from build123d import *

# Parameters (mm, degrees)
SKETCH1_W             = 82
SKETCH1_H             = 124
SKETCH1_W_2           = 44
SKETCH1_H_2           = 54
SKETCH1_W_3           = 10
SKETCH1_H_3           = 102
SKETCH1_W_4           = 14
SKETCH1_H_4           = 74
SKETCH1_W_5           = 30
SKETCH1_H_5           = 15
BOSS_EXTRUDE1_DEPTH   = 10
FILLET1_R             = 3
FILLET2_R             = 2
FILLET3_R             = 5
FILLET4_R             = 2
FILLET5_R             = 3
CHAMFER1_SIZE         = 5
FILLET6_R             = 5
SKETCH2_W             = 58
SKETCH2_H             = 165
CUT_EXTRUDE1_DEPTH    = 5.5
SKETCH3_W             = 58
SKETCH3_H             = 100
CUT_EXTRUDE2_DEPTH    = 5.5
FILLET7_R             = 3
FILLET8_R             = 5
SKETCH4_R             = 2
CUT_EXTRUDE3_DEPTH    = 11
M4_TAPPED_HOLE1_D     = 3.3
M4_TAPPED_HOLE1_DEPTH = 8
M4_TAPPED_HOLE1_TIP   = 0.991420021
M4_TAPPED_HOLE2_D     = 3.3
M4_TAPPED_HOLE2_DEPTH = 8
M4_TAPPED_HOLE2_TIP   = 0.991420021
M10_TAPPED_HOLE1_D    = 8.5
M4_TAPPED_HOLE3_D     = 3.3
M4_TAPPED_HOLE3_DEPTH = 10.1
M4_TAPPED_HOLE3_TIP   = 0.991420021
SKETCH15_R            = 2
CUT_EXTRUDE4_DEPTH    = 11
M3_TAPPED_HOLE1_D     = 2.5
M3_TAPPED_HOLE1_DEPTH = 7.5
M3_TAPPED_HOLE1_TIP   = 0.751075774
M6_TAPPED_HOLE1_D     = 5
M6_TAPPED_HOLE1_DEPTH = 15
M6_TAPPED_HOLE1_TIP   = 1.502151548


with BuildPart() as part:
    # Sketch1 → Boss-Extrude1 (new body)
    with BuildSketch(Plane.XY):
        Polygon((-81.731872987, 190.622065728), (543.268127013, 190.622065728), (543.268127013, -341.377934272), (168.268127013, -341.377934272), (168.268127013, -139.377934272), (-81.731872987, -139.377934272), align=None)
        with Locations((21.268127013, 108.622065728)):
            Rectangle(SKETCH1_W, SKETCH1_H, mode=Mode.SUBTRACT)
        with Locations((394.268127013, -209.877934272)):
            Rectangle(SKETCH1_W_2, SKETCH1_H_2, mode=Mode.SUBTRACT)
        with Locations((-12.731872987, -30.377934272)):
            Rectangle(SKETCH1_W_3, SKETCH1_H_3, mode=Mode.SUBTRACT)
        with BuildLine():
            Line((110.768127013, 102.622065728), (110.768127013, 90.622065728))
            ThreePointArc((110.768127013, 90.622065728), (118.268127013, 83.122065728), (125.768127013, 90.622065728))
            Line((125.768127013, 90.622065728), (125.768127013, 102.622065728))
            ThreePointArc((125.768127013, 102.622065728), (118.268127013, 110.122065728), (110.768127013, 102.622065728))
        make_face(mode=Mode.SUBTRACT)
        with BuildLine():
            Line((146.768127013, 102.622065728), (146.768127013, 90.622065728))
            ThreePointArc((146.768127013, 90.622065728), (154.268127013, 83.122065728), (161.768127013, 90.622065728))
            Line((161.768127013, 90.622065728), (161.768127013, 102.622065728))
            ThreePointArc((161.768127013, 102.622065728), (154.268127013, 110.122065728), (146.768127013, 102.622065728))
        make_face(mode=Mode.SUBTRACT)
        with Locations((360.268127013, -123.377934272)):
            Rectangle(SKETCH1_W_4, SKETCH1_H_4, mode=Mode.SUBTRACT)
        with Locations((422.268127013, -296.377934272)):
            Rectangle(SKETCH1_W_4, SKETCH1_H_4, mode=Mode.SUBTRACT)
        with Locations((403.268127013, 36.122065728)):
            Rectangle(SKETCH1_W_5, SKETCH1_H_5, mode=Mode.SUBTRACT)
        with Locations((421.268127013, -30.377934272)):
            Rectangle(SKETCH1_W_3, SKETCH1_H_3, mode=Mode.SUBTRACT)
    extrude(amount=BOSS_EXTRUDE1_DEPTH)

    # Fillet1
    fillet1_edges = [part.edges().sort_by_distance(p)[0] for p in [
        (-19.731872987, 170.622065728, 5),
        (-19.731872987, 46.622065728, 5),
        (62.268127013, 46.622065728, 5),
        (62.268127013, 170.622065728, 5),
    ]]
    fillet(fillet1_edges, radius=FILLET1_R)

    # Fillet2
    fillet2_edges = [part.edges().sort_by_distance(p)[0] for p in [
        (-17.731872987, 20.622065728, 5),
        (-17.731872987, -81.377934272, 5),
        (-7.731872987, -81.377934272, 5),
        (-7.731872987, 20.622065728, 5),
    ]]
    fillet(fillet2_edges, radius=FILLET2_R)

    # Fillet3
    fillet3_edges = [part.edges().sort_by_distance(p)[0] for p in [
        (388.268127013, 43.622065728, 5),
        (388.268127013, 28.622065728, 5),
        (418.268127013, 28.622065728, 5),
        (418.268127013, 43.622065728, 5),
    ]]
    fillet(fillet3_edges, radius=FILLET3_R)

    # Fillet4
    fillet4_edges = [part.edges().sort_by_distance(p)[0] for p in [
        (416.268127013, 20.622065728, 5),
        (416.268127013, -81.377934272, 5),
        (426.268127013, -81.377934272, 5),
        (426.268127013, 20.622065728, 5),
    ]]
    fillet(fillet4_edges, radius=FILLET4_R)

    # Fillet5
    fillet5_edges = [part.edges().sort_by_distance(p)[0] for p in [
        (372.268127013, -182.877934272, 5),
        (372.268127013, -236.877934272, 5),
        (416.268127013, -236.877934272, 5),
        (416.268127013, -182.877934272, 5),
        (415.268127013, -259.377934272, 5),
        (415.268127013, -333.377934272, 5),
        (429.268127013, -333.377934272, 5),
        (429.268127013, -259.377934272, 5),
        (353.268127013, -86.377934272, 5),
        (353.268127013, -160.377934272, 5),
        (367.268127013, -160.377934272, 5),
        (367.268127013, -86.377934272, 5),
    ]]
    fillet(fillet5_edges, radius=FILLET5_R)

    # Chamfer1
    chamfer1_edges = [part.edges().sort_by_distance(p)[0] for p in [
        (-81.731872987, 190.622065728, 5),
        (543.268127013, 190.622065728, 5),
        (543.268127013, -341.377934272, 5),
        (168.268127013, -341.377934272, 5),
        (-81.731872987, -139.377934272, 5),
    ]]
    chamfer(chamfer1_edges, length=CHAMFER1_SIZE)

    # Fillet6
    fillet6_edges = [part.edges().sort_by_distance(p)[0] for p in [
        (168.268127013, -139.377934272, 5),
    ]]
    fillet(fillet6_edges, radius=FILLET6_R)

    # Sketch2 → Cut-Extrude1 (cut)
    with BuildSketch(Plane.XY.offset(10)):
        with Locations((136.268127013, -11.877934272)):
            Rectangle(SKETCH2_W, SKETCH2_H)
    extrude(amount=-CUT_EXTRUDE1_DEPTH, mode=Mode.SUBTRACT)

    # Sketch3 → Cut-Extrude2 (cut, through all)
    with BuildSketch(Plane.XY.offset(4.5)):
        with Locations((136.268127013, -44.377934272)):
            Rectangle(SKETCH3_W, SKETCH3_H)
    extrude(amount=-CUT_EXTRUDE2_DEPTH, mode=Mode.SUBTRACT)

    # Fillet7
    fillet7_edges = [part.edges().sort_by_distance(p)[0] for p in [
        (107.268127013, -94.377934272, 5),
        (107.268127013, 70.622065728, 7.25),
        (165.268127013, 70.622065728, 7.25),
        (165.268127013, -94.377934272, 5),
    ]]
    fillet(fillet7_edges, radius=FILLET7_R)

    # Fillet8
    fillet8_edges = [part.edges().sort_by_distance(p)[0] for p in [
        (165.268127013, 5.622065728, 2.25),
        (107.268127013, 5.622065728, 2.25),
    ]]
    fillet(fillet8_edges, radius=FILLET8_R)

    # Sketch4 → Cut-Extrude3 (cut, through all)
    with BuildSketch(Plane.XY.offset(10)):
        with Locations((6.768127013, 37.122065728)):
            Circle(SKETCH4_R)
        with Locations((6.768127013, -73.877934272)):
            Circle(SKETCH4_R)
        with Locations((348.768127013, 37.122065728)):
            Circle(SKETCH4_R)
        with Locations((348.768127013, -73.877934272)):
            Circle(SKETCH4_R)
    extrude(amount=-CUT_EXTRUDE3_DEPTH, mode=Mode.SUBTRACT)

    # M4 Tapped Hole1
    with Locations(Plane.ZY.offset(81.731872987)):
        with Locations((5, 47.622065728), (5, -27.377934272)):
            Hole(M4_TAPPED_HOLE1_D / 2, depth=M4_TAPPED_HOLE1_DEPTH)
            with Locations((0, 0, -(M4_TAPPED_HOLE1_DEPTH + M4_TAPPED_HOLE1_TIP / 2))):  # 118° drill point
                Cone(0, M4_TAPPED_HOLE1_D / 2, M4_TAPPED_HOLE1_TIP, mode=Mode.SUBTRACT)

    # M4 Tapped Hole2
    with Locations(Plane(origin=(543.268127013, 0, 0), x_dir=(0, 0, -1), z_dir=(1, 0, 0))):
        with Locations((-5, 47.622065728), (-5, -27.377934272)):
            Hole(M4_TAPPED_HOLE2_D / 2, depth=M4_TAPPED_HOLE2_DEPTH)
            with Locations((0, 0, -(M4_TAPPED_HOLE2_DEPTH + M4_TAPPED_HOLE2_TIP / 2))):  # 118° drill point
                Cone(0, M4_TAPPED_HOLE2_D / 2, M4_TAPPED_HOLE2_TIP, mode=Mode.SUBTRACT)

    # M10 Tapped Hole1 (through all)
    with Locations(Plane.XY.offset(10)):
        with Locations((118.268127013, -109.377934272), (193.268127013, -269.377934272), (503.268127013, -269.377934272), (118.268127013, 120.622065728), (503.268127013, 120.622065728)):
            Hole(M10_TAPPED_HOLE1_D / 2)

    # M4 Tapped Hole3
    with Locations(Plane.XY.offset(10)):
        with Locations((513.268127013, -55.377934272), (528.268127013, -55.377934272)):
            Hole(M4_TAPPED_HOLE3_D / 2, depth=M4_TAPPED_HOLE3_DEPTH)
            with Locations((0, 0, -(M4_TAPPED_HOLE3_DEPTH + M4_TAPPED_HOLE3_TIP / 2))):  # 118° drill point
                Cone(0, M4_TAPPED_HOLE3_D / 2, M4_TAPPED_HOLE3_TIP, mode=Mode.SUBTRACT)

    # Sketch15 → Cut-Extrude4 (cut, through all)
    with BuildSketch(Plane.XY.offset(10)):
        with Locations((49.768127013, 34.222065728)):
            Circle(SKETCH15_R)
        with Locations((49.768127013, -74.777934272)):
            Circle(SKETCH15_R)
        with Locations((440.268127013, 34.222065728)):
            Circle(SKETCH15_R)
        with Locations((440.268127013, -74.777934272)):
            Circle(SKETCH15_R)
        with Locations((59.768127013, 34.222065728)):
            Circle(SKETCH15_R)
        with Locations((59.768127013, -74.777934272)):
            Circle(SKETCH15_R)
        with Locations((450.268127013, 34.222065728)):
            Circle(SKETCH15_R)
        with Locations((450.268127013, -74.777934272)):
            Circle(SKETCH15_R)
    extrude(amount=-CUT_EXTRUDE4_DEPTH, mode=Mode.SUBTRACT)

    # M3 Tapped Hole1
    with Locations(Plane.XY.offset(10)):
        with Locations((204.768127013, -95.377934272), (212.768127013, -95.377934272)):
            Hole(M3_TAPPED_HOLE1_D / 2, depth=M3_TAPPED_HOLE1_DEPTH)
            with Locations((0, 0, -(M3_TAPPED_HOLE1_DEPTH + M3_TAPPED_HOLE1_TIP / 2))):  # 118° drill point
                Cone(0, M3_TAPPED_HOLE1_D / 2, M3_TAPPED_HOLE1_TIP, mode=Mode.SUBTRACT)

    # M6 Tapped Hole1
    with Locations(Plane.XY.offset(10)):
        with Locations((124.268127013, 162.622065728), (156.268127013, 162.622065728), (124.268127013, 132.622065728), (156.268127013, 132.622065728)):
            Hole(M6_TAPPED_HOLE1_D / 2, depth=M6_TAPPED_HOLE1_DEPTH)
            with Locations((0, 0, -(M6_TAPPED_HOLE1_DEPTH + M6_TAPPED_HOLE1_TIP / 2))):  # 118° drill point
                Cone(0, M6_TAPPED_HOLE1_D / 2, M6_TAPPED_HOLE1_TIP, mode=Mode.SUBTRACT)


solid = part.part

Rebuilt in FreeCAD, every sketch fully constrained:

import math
import FreeCAD as App
import Part
import Sketcher
Q = App.Units.Quantity


def edges_at(feature, points):
    """Names of the edges that pass closest to the given points."""
    edges = feature.Shape.Edges
    near = lambda p: min(range(len(edges)), key=lambda i: edges[i].distToShape(Part.Vertex(*p))[0])
    return sorted({f"Edge{near(p) + 1}" for p in points})


def add_polygon(sketch, points):
    """Adds a closed chain of lines whose ends are joined by coincident constraints."""
    first, n = sketch.GeometryCount, len(points)
    for a, b in zip(points, points[1:] + points[:1]):
        sketch.addGeometry(Part.LineSegment(App.Vector(*a, 0), App.Vector(*b, 0)), False)
    for i in range(n):
        sketch.addConstraint(Sketcher.Constraint("Coincident", first + i, 2, first + (i + 1) % n, 1))

doc = App.newDocument("Part")
body = doc.addObject("PartDesign::Body", "Body")

# Sketch on XY plane
sketch1 = body.newObject("Sketcher::SketchObject", "Sketch")
sketch1.AttachmentSupport = (doc.getObject("XY_Plane"), [""])
sketch1.MapMode = "FlatFace"
add_polygon(sketch1, [(543.268127, 190.622066), (-81.731873, 190.622066), (-81.731873, -139.377934), (168.268127, -139.377934), (168.268127, -341.377934), (543.268127, -341.377934)])  # lines 0-5
add_polygon(sketch1, [(415.268127, -333.377934), (415.268127, -259.377934), (429.268127, -259.377934), (429.268127, -333.377934)])  # lines 6-9
add_polygon(sketch1, [(372.268127, -236.877934), (372.268127, -182.877934), (416.268127, -182.877934), (416.268127, -236.877934)])  # lines 10-13
add_polygon(sketch1, [(353.268127, -160.377934), (353.268127, -86.377934), (367.268127, -86.377934), (367.268127, -160.377934)])  # lines 14-17
add_polygon(sketch1, [(416.268127, -81.377934), (416.268127, 20.622066), (426.268127, 20.622066), (426.268127, -81.377934)])  # lines 18-21
add_polygon(sketch1, [(388.268127, 28.622066), (388.268127, 43.622066), (418.268127, 43.622066), (418.268127, 28.622066)])  # lines 22-25
add_polygon(sketch1, [(-17.731873, -81.377934), (-17.731873, 20.622066), (-7.731873, 20.622066), (-7.731873, -81.377934)])  # lines 26-29
sketch1.addGeometry(Part.ArcOfCircle(Part.Circle(App.Vector(154.268127, 102.622066, 0), App.Vector(0, 0, 1), 7.5), math.radians(0), math.radians(180)), False)  # 30
sketch1.addGeometry(Part.LineSegment(App.Vector(161.768127, 102.622066, 0), App.Vector(161.768127, 90.622066, 0)), False)  # 31
sketch1.addGeometry(Part.ArcOfCircle(Part.Circle(App.Vector(154.268127, 90.622066, 0), App.Vector(0, 0, 1), 7.5), math.radians(180), math.radians(360)), False)  # 32
sketch1.addGeometry(Part.LineSegment(App.Vector(146.768127, 90.622066, 0), App.Vector(146.768127, 102.622066, 0)), False)  # 33
sketch1.addGeometry(Part.ArcOfCircle(Part.Circle(App.Vector(118.268127, 102.622066, 0), App.Vector(0, 0, 1), 7.5), math.radians(0), math.radians(180)), False)  # 34
sketch1.addGeometry(Part.LineSegment(App.Vector(125.768127, 102.622066, 0), App.Vector(125.768127, 90.622066, 0)), False)  # 35
sketch1.addGeometry(Part.ArcOfCircle(Part.Circle(App.Vector(118.268127, 90.622066, 0), App.Vector(0, 0, 1), 7.5), math.radians(180), math.radians(360)), False)  # 36
sketch1.addGeometry(Part.LineSegment(App.Vector(110.768127, 90.622066, 0), App.Vector(110.768127, 102.622066, 0)), False)  # 37
add_polygon(sketch1, [(-19.731873, 46.622066), (-19.731873, 170.622066), (62.268127, 170.622066), (62.268127, 46.622066)])  # lines 38-41
sketch1.addConstraint([
    Sketcher.Constraint("Tangent", 30, 1, 31, 1),
    Sketcher.Constraint("Tangent", 31, 2, 32, 2),
    Sketcher.Constraint("Tangent", 32, 1, 33, 1),
    Sketcher.Constraint("Tangent", 33, 2, 30, 2),
    Sketcher.Constraint("Tangent", 34, 1, 35, 1),
    Sketcher.Constraint("Tangent", 35, 2, 36, 2),
    Sketcher.Constraint("Tangent", 36, 1, 37, 1),
    Sketcher.Constraint("Tangent", 37, 2, 34, 2),
    Sketcher.Constraint("Horizontal", 0),
    Sketcher.Constraint("Vertical", 1),
    Sketcher.Constraint("Horizontal", 2),
    Sketcher.Constraint("Vertical", 3),
    Sketcher.Constraint("Horizontal", 4),
    Sketcher.Constraint("Vertical", 5),
    Sketcher.Constraint("Vertical", 6),
    Sketcher.Constraint("Horizontal", 7),
    Sketcher.Constraint("Vertical", 8),
    Sketcher.Constraint("Horizontal", 9),
    Sketcher.Constraint("Vertical", 10),
    Sketcher.Constraint("Horizontal", 11),
    Sketcher.Constraint("Vertical", 12),
    Sketcher.Constraint("Horizontal", 13),
    Sketcher.Constraint("Vertical", 14),
    Sketcher.Constraint("Horizontal", 15),
    Sketcher.Constraint("Vertical", 16),
    Sketcher.Constraint("Horizontal", 17),
    Sketcher.Constraint("Vertical", 18),
    Sketcher.Constraint("Horizontal", 19),
    Sketcher.Constraint("Vertical", 20),
    Sketcher.Constraint("Horizontal", 21),
    Sketcher.Constraint("Vertical", 22),
    Sketcher.Constraint("Horizontal", 23),
    Sketcher.Constraint("Vertical", 24),
    Sketcher.Constraint("Horizontal", 25),
    Sketcher.Constraint("Vertical", 26),
    Sketcher.Constraint("Horizontal", 27),
    Sketcher.Constraint("Vertical", 28),
    Sketcher.Constraint("Horizontal", 29),
    Sketcher.Constraint("Vertical", 31),
    Sketcher.Constraint("Vertical", 33),
    Sketcher.Constraint("Vertical", 35),
    Sketcher.Constraint("Vertical", 37),
    Sketcher.Constraint("Vertical", 38),
    Sketcher.Constraint("Horizontal", 39),
    Sketcher.Constraint("Vertical", 40),
    Sketcher.Constraint("Horizontal", 41),
    Sketcher.Constraint("Equal", 32, 34),
    Sketcher.Constraint("Horizontal", 30, 3, 34, 3),
    Sketcher.Constraint("Horizontal", 32, 3, 36, 3),
    Sketcher.Constraint("Horizontal", 19, 2, 26, 2),
    Sketcher.Constraint("Horizontal", 21, 2, 28, 2),
    Sketcher.Constraint("Vertical", 12, 2, 18, 2),
    Sketcher.Constraint("Equal", 9, 15),
    Sketcher.Constraint("Equal", 21, 27),
    Sketcher.Constraint("Equal", 8, 14),
    Sketcher.Constraint("Radius", 30, Q("7.5 mm")),
    Sketcher.Constraint("DistanceX", 0, 2, 0, 1, Q("625 mm")),
    Sketcher.Constraint("DistanceX", 2, 1, 2, 2, Q("250 mm")),
    Sketcher.Constraint("DistanceX", 7, 1, 7, 2, Q("14 mm")),
    Sketcher.Constraint("DistanceX", 11, 1, 11, 2, Q("44 mm")),
    Sketcher.Constraint("DistanceX", 19, 1, 19, 2, Q("10 mm")),
    Sketcher.Constraint("DistanceX", 23, 1, 23, 2, Q("30 mm")),
    Sketcher.Constraint("DistanceX", 39, 1, 39, 2, Q("82 mm")),
    Sketcher.Constraint("DistanceY", 1, 2, 1, 1, Q("330 mm")),
    Sketcher.Constraint("DistanceY", 3, 2, 3, 1, Q("202 mm")),
    Sketcher.Constraint("DistanceY", 6, 1, 6, 2, Q("74 mm")),
    Sketcher.Constraint("DistanceY", 10, 1, 10, 2, Q("54 mm")),
    Sketcher.Constraint("DistanceY", 18, 1, 18, 2, Q("102 mm")),
    Sketcher.Constraint("DistanceY", 22, 1, 22, 2, Q("15 mm")),
    Sketcher.Constraint("DistanceY", 31, 2, 31, 1, Q("12 mm")),
    Sketcher.Constraint("DistanceY", 38, 1, 38, 2, Q("124 mm")),
    Sketcher.Constraint("DistanceX", 34, 3, 30, 3, Q("36 mm")),
    Sketcher.Constraint("DistanceX", 0, 2, 34, 3, Q("200 mm")),
    Sketcher.Constraint("DistanceY", 34, 3, 0, 2, Q("88 mm")),
    Sketcher.Constraint("DistanceX", 6, 2, 4, 2, Q("128 mm")),
    Sketcher.Constraint("DistanceY", 4, 2, 6, 2, Q("82 mm")),
    Sketcher.Constraint("DistanceX", 10, 2, 6, 2, Q("43 mm")),
    Sketcher.Constraint("DistanceX", 14, 2, 10, 2, Q("19 mm")),
    Sketcher.Constraint("DistanceY", 6, 2, 14, 2, Q("173 mm")),
    Sketcher.Constraint("DistanceY", 15, 2, 18, 2, Q("107 mm")),
    Sketcher.Constraint("DistanceX", 22, 2, 18, 2, Q("28 mm")),
    Sketcher.Constraint("DistanceY", 18, 2, 22, 2, Q("23 mm")),
    Sketcher.Constraint("DistanceX", 26, 2, 36, 3, Q("136 mm")),
    Sketcher.Constraint("DistanceX", 0, 2, 38, 2, Q("62 mm")),
    Sketcher.Constraint("DistanceY", 38, 2, 0, 2, Q("20 mm")),
    Sketcher.Constraint("DistanceY", 6, 2, 10, 2, Q("76.5 mm")),
    Sketcher.Constraint("DistanceX", -1, 1, 30, 3, Q("154.268127 mm")),
    Sketcher.Constraint("DistanceY", -1, 1, 30, 3, Q("102.622066 mm")),
])
pad1 = body.newObject("PartDesign::Pad", "Pad")
pad1.Profile = sketch1
pad1.Length = 10
doc.recompute()

fillet = body.newObject("PartDesign::Fillet", "Fillet")
fillet.Base = (pad1, edges_at(pad1, [
    (-19.732, 170.622, 5),
    (-19.732, 46.622, 5),
    (62.268, 46.622, 5),
    (62.268, 170.622, 5),
]))
fillet.Radius = 3
doc.recompute()

fillet2 = body.newObject("PartDesign::Fillet", "Fillet001")
fillet2.Base = (fillet, edges_at(fillet, [
    (-17.732, 20.622, 5),
    (-17.732, -81.378, 5),
    (-7.732, -81.378, 5),
    (-7.732, 20.622, 5),
]))
fillet2.Radius = 2
doc.recompute()

fillet3 = body.newObject("PartDesign::Fillet", "Fillet002")
fillet3.Base = (fillet2, edges_at(fillet2, [
    (388.268, 43.622, 5),
    (388.268, 28.622, 5),
    (418.268, 28.622, 5),
    (418.268, 43.622, 5),
]))
fillet3.Radius = 5
doc.recompute()

fillet4 = body.newObject("PartDesign::Fillet", "Fillet003")
fillet4.Base = (fillet3, edges_at(fillet3, [
    (416.268, 20.622, 5),
    (416.268, -81.378, 5),
    (426.268, -81.378, 5),
    (426.268, 20.622, 5),
]))
fillet4.Radius = 2
doc.recompute()

fillet5 = body.newObject("PartDesign::Fillet", "Fillet004")
fillet5.Base = (fillet4, edges_at(fillet4, [
    (372.268, -182.878, 5),
    (372.268, -236.878, 5),
    (416.268, -236.878, 5),
    (416.268, -182.878, 5),
    (415.268, -259.378, 5),
    (415.268, -333.378, 5),
    (429.268, -333.378, 5),
    (429.268, -259.378, 5),
    (353.268, -86.378, 5),
    (353.268, -160.378, 5),
    (367.268, -160.378, 5),
    (367.268, -86.378, 5),
]))
fillet5.Radius = 3
doc.recompute()

chamfer = body.newObject("PartDesign::Chamfer", "Chamfer")
chamfer.Base = (fillet5, edges_at(fillet5, [
    (-81.732, 190.622, 5),
    (543.268, 190.622, 5),
    (543.268, -341.378, 5),
    (168.268, -341.378, 5),
    (-81.732, -139.378, 5),
]))
chamfer.Size = 5
doc.recompute()

fillet6 = body.newObject("PartDesign::Fillet", "Fillet005")
fillet6.Base = (chamfer, edges_at(chamfer, [(168.268, -139.378, 5)]))
fillet6.Radius = 5

# Sketch on XY plane
sketch2 = body.newObject("Sketcher::SketchObject", "Sketch001")
sketch2.AttachmentSupport = (doc.getObject("XY_Plane"), [""])
sketch2.MapMode = "FlatFace"
sketch2.AttachmentOffset = App.Placement(App.Vector(0, 0, 10), App.Rotation())
add_polygon(sketch2, [(107.268127, 70.622066), (107.268127, -94.377934), (165.268127, -94.377934), (165.268127, 70.622066)])  # lines 0-3
sketch2.addConstraint([
    Sketcher.Constraint("Vertical", 0),
    Sketcher.Constraint("Horizontal", 1),
    Sketcher.Constraint("Vertical", 2),
    Sketcher.Constraint("Horizontal", 3),
    Sketcher.Constraint("DistanceX", 1, 1, 1, 2, Q("58 mm")),
    Sketcher.Constraint("DistanceY", 0, 2, 0, 1, Q("165 mm")),
    Sketcher.Constraint("DistanceX", -1, 1, 0, 2, Q("107.268127 mm")),
    Sketcher.Constraint("DistanceY", 0, 2, -1, 1, Q("94.377934 mm")),
])
pocket1 = body.newObject("PartDesign::Pocket", "Pocket")
pocket1.Profile = sketch2
pocket1.Length = 5.5

# Sketch on XY plane
sketch3 = body.newObject("Sketcher::SketchObject", "Sketch002")
sketch3.AttachmentSupport = (doc.getObject("XY_Plane"), [""])
sketch3.MapMode = "FlatFace"
sketch3.AttachmentOffset = App.Placement(App.Vector(0, 0, 4.5), App.Rotation())
add_polygon(sketch3, [(107.268127, 5.622066), (107.268127, -94.377934), (165.268127, -94.377934), (165.268127, 5.622066)])  # lines 0-3
sketch3.addConstraint([
    Sketcher.Constraint("Vertical", 0),
    Sketcher.Constraint("Horizontal", 1),
    Sketcher.Constraint("Vertical", 2),
    Sketcher.Constraint("Horizontal", 3),
    Sketcher.Constraint("DistanceX", 1, 1, 1, 2, Q("58 mm")),
    Sketcher.Constraint("DistanceY", 0, 2, 0, 1, Q("100 mm")),
    Sketcher.Constraint("DistanceX", -1, 1, 0, 2, Q("107.268127 mm")),
    Sketcher.Constraint("DistanceY", 0, 2, -1, 1, Q("94.377934 mm")),
])
pocket2 = body.newObject("PartDesign::Pocket", "Pocket001")
pocket2.Profile = sketch3
pocket2.Type = "ThroughAll"
doc.recompute()

fillet7 = body.newObject("PartDesign::Fillet", "Fillet006")
fillet7.Base = (pocket2, edges_at(pocket2, [
    (107.268, -94.378, 5),
    (107.268, 70.622, 7.25),
    (165.268, 70.622, 7.25),
    (165.268, -94.378, 5),
]))
fillet7.Radius = 3
doc.recompute()

fillet8 = body.newObject("PartDesign::Fillet", "Fillet007")
fillet8.Base = (fillet7, edges_at(fillet7, [(165.268, 5.622, 2.25), (107.268, 5.622, 2.25)]))
fillet8.Radius = 5

# Sketch on XY plane
sketch4 = body.newObject("Sketcher::SketchObject", "Sketch003")
sketch4.AttachmentSupport = (doc.getObject("XY_Plane"), [""])
sketch4.MapMode = "FlatFace"
sketch4.AttachmentOffset = App.Placement(App.Vector(0, 0, 10), App.Rotation())
sketch4.addGeometry([
    Part.Circle(App.Vector(6.768127, 37.122066, 0), App.Vector(0, 0, 1), 2),
    Part.Circle(App.Vector(6.768127, -73.877934, 0), App.Vector(0, 0, 1), 2),
    Part.Circle(App.Vector(348.768127, 37.122066, 0), App.Vector(0, 0, 1), 2),
    Part.Circle(App.Vector(348.768127, -73.877934, 0), App.Vector(0, 0, 1), 2),
], False)
sketch4.addConstraint([
    Sketcher.Constraint("Equal", 0, 1),
    Sketcher.Constraint("Equal", 1, 2),
    Sketcher.Constraint("Equal", 2, 3),
    Sketcher.Constraint("Horizontal", 0, 3, 2, 3),
    Sketcher.Constraint("Horizontal", 1, 3, 3, 3),
    Sketcher.Constraint("Vertical", 0, 3, 1, 3),
    Sketcher.Constraint("Vertical", 2, 3, 3, 3),
    Sketcher.Constraint("Diameter", 0, Q("4 mm")),
    Sketcher.Constraint("DistanceY", 1, 3, 0, 3, Q("111 mm")),
    Sketcher.Constraint("DistanceX", 0, 3, 2, 3, Q("342 mm")),
    Sketcher.Constraint("DistanceX", -1, 1, 0, 3, Q("6.768127 mm")),
    Sketcher.Constraint("DistanceY", -1, 1, 0, 3, Q("37.122066 mm")),
])
pocket3 = body.newObject("PartDesign::Pocket", "Pocket002")
pocket3.Profile = sketch4
pocket3.Type = "ThroughAll"

# Sketch on YZ plane
sketch5 = body.newObject("Sketcher::SketchObject", "Sketch004")
sketch5.AttachmentSupport = (doc.getObject("YZ_Plane"), [""])
sketch5.MapMode = "FlatFace"
sketch5.AttachmentOffset = App.Placement(App.Vector(0, 0, -81.731873), App.Rotation())
sketch5.addGeometry([
    Part.Circle(App.Vector(47.622066, 5, 0), App.Vector(0, 0, 1), 1.65),
    Part.Circle(App.Vector(-27.377934, 5, 0), App.Vector(0, 0, 1), 1.65),
], False)
sketch5.addConstraint([
    Sketcher.Constraint("Equal", 0, 1),
    Sketcher.Constraint("Horizontal", 0, 3, 1, 3),
    Sketcher.Constraint("Diameter", 0, Q("3.3 mm")),
    Sketcher.Constraint("DistanceY", -1, 1, 0, 3, Q("5 mm")),
    Sketcher.Constraint("DistanceX", 1, 3, 0, 3, Q("75 mm")),
    Sketcher.Constraint("DistanceX", -1, 1, 0, 3, Q("47.622066 mm")),
])
doc.recompute()
hole = body.newObject("PartDesign::Hole", "Hole")
hole.Profile = sketch5
hole.ThreadType = "None"
hole.Diameter = 3.3
hole.DepthType = "Dimension"
hole.Depth = 8
hole.DrillPoint = "Angled"
hole.DrillPointAngle = 118
hole.Reversed = True

# Sketch on YZ plane
sketch6 = body.newObject("Sketcher::SketchObject", "Sketch005")
sketch6.AttachmentSupport = (doc.getObject("YZ_Plane"), [""])
sketch6.MapMode = "FlatFace"
sketch6.AttachmentOffset = App.Placement(App.Vector(0, 0, 543.268127), App.Rotation())
sketch6.addGeometry([
    Part.Circle(App.Vector(47.622066, 5, 0), App.Vector(0, 0, 1), 1.65),
    Part.Circle(App.Vector(-27.377934, 5, 0), App.Vector(0, 0, 1), 1.65),
], False)
sketch6.addConstraint([
    Sketcher.Constraint("Equal", 0, 1),
    Sketcher.Constraint("Horizontal", 0, 3, 1, 3),
    Sketcher.Constraint("Diameter", 0, Q("3.3 mm")),
    Sketcher.Constraint("DistanceY", -1, 1, 0, 3, Q("5 mm")),
    Sketcher.Constraint("DistanceX", 1, 3, 0, 3, Q("75 mm")),
    Sketcher.Constraint("DistanceX", -1, 1, 0, 3, Q("47.622066 mm")),
])
doc.recompute()
hole2 = body.newObject("PartDesign::Hole", "Hole001")
hole2.Profile = sketch6
hole2.ThreadType = "None"
hole2.Diameter = 3.3
hole2.DepthType = "Dimension"
hole2.Depth = 8
hole2.DrillPoint = "Angled"
hole2.DrillPointAngle = 118

# Sketch on XY plane
sketch7 = body.newObject("Sketcher::SketchObject", "Sketch006")
sketch7.AttachmentSupport = (doc.getObject("XY_Plane"), [""])
sketch7.MapMode = "FlatFace"
sketch7.AttachmentOffset = App.Placement(App.Vector(0, 0, 10), App.Rotation())
sketch7.addGeometry([
    Part.Circle(App.Vector(118.268127, -109.377934, 0), App.Vector(0, 0, 1), 4.25),  # 0
    Part.Circle(App.Vector(193.268127, -269.377934, 0), App.Vector(0, 0, 1), 4.25),  # 1
    Part.Circle(App.Vector(503.268127, -269.377934, 0), App.Vector(0, 0, 1), 4.25),  # 2
    Part.Circle(App.Vector(118.268127, 120.622066, 0), App.Vector(0, 0, 1), 4.25),  # 3
    Part.Circle(App.Vector(503.268127, 120.622066, 0), App.Vector(0, 0, 1), 4.25),  # 4
], False)
sketch7.addConstraint([
    Sketcher.Constraint("Equal", 0, 1),
    Sketcher.Constraint("Equal", 1, 2),
    Sketcher.Constraint("Equal", 2, 3),
    Sketcher.Constraint("Equal", 3, 4),
    Sketcher.Constraint("Horizontal", 1, 3, 2, 3),
    Sketcher.Constraint("Horizontal", 3, 3, 4, 3),
    Sketcher.Constraint("Vertical", 0, 3, 3, 3),
    Sketcher.Constraint("Vertical", 2, 3, 4, 3),
    Sketcher.Constraint("Diameter", 0, Q("8.5 mm")),
    Sketcher.Constraint("DistanceX", 0, 3, 1, 3, Q("75 mm")),
    Sketcher.Constraint("DistanceY", 1, 3, 0, 3, Q("160 mm")),
    Sketcher.Constraint("DistanceX", 1, 3, 2, 3, Q("310 mm")),
    Sketcher.Constraint("DistanceY", 0, 3, 3, 3, Q("230 mm")),
    Sketcher.Constraint("DistanceX", -1, 1, 0, 3, Q("118.268127 mm")),
    Sketcher.Constraint("DistanceY", 0, 3, -1, 1, Q("109.377934 mm")),
])
doc.recompute()
hole3 = body.newObject("PartDesign::Hole", "Hole002")
hole3.Profile = sketch7
hole3.ThreadType = "None"
hole3.Diameter = 8.5
hole3.DepthType = "ThroughAll"

# Sketch on XY plane
sketch8 = body.newObject("Sketcher::SketchObject", "Sketch007")
sketch8.AttachmentSupport = (doc.getObject("XY_Plane"), [""])
sketch8.MapMode = "FlatFace"
sketch8.AttachmentOffset = App.Placement(App.Vector(0, 0, 10), App.Rotation())
sketch8.addGeometry([
    Part.Circle(App.Vector(513.268127, -55.377934, 0), App.Vector(0, 0, 1), 1.65),
    Part.Circle(App.Vector(528.268127, -55.377934, 0), App.Vector(0, 0, 1), 1.65),
], False)
sketch8.addConstraint([
    Sketcher.Constraint("Equal", 0, 1),
    Sketcher.Constraint("Horizontal", 0, 3, 1, 3),
    Sketcher.Constraint("Diameter", 0, Q("3.3 mm")),
    Sketcher.Constraint("DistanceX", 0, 3, 1, 3, Q("15 mm")),
    Sketcher.Constraint("DistanceX", -1, 1, 0, 3, Q("513.268127 mm")),
    Sketcher.Constraint("DistanceY", 0, 3, -1, 1, Q("55.377934 mm")),
])
doc.recompute()
hole4 = body.newObject("PartDesign::Hole", "Hole003")
hole4.Profile = sketch8
hole4.ThreadType = "None"
hole4.Diameter = 3.3
hole4.DepthType = "Dimension"
hole4.Depth = 10.1
hole4.DrillPoint = "Angled"
hole4.DrillPointAngle = 118

# Sketch on XY plane
sketch9 = body.newObject("Sketcher::SketchObject", "Sketch008")
sketch9.AttachmentSupport = (doc.getObject("XY_Plane"), [""])
sketch9.MapMode = "FlatFace"
sketch9.AttachmentOffset = App.Placement(App.Vector(0, 0, 10), App.Rotation())
sketch9.addGeometry([
    Part.Circle(App.Vector(49.768127, 34.222066, 0), App.Vector(0, 0, 1), 2),  # 0
    Part.Circle(App.Vector(49.768127, -74.777934, 0), App.Vector(0, 0, 1), 2),  # 1
    Part.Circle(App.Vector(440.268127, 34.222066, 0), App.Vector(0, 0, 1), 2),  # 2
    Part.Circle(App.Vector(440.268127, -74.777934, 0), App.Vector(0, 0, 1), 2),  # 3
    Part.Circle(App.Vector(59.768127, 34.222066, 0), App.Vector(0, 0, 1), 2),  # 4
    Part.Circle(App.Vector(59.768127, -74.777934, 0), App.Vector(0, 0, 1), 2),  # 5
    Part.Circle(App.Vector(450.268127, 34.222066, 0), App.Vector(0, 0, 1), 2),  # 6
    Part.Circle(App.Vector(450.268127, -74.777934, 0), App.Vector(0, 0, 1), 2),  # 7
], False)
sketch9.addConstraint([
    Sketcher.Constraint("Equal", 0, 1),
    Sketcher.Constraint("Equal", 1, 2),
    Sketcher.Constraint("Equal", 2, 3),
    Sketcher.Constraint("Equal", 3, 4),
    Sketcher.Constraint("Equal", 4, 5),
    Sketcher.Constraint("Equal", 5, 6),
    Sketcher.Constraint("Equal", 6, 7),
    Sketcher.Constraint("Horizontal", 0, 3, 2, 3),
    Sketcher.Constraint("Horizontal", 1, 3, 3, 3),
    Sketcher.Constraint("Horizontal", 2, 3, 4, 3),
    Sketcher.Constraint("Horizontal", 3, 3, 5, 3),
    Sketcher.Constraint("Horizontal", 4, 3, 6, 3),
    Sketcher.Constraint("Horizontal", 5, 3, 7, 3),
    Sketcher.Constraint("Vertical", 0, 3, 1, 3),
    Sketcher.Constraint("Vertical", 2, 3, 3, 3),
    Sketcher.Constraint("Vertical", 4, 3, 5, 3),
    Sketcher.Constraint("Vertical", 6, 3, 7, 3),
    Sketcher.Constraint("Diameter", 0, Q("4 mm")),
    Sketcher.Constraint("DistanceY", 1, 3, 0, 3, Q("109 mm")),
    Sketcher.Constraint("DistanceX", 0, 3, 4, 3, Q("10 mm")),
    Sketcher.Constraint("DistanceX", 2, 3, 6, 3, Q("10 mm")),
    Sketcher.Constraint("DistanceX", 0, 3, 2, 3, Q("390.5 mm")),
    Sketcher.Constraint("DistanceX", -1, 1, 0, 3, Q("49.768127 mm")),
    Sketcher.Constraint("DistanceY", -1, 1, 0, 3, Q("34.222066 mm")),
])
pocket4 = body.newObject("PartDesign::Pocket", "Pocket003")
pocket4.Profile = sketch9
pocket4.Type = "ThroughAll"

# Sketch on XY plane
sketch10 = body.newObject("Sketcher::SketchObject", "Sketch009")
sketch10.AttachmentSupport = (doc.getObject("XY_Plane"), [""])
sketch10.MapMode = "FlatFace"
sketch10.AttachmentOffset = App.Placement(App.Vector(0, 0, 10), App.Rotation())
sketch10.addGeometry([
    Part.Circle(App.Vector(204.768127, -95.377934, 0), App.Vector(0, 0, 1), 1.25),
    Part.Circle(App.Vector(212.768127, -95.377934, 0), App.Vector(0, 0, 1), 1.25),
], False)
sketch10.addConstraint([
    Sketcher.Constraint("Equal", 0, 1),
    Sketcher.Constraint("Horizontal", 0, 3, 1, 3),
    Sketcher.Constraint("Diameter", 0, Q("2.5 mm")),
    Sketcher.Constraint("DistanceX", 0, 3, 1, 3, Q("8 mm")),
    Sketcher.Constraint("DistanceX", -1, 1, 0, 3, Q("204.768127 mm")),
    Sketcher.Constraint("DistanceY", 0, 3, -1, 1, Q("95.377934 mm")),
])
doc.recompute()
hole5 = body.newObject("PartDesign::Hole", "Hole004")
hole5.Profile = sketch10
hole5.ThreadType = "None"
hole5.Diameter = 2.5
hole5.DepthType = "Dimension"
hole5.Depth = 7.5
hole5.DrillPoint = "Angled"
hole5.DrillPointAngle = 118

# Sketch on XY plane
sketch11 = body.newObject("Sketcher::SketchObject", "Sketch010")
sketch11.AttachmentSupport = (doc.getObject("XY_Plane"), [""])
sketch11.MapMode = "FlatFace"
sketch11.AttachmentOffset = App.Placement(App.Vector(0, 0, 10), App.Rotation())
sketch11.addGeometry([
    Part.Circle(App.Vector(124.268127, 162.622066, 0), App.Vector(0, 0, 1), 2.5),
    Part.Circle(App.Vector(156.268127, 162.622066, 0), App.Vector(0, 0, 1), 2.5),
    Part.Circle(App.Vector(124.268127, 132.622066, 0), App.Vector(0, 0, 1), 2.5),
    Part.Circle(App.Vector(156.268127, 132.622066, 0), App.Vector(0, 0, 1), 2.5),
], False)
sketch11.addConstraint([
    Sketcher.Constraint("Equal", 0, 1),
    Sketcher.Constraint("Equal", 1, 2),
    Sketcher.Constraint("Equal", 2, 3),
    Sketcher.Constraint("Horizontal", 0, 3, 1, 3),
    Sketcher.Constraint("Horizontal", 2, 3, 3, 3),
    Sketcher.Constraint("Vertical", 0, 3, 2, 3),
    Sketcher.Constraint("Vertical", 1, 3, 3, 3),
    Sketcher.Constraint("Diameter", 0, Q("5 mm")),
    Sketcher.Constraint("DistanceX", 0, 3, 1, 3, Q("32 mm")),
    Sketcher.Constraint("DistanceY", 2, 3, 0, 3, Q("30 mm")),
    Sketcher.Constraint("DistanceX", -1, 1, 0, 3, Q("124.268127 mm")),
    Sketcher.Constraint("DistanceY", -1, 1, 0, 3, Q("162.622066 mm")),
])
doc.recompute()
hole6 = body.newObject("PartDesign::Hole", "Hole005")
hole6.Profile = sketch11
hole6.ThreadType = "None"
hole6.Diameter = 5
hole6.DepthType = "Dimension"
hole6.Depth = 15
hole6.DrillPoint = "Angled"
hole6.DrillPointAngle = 118

doc.recompute()
